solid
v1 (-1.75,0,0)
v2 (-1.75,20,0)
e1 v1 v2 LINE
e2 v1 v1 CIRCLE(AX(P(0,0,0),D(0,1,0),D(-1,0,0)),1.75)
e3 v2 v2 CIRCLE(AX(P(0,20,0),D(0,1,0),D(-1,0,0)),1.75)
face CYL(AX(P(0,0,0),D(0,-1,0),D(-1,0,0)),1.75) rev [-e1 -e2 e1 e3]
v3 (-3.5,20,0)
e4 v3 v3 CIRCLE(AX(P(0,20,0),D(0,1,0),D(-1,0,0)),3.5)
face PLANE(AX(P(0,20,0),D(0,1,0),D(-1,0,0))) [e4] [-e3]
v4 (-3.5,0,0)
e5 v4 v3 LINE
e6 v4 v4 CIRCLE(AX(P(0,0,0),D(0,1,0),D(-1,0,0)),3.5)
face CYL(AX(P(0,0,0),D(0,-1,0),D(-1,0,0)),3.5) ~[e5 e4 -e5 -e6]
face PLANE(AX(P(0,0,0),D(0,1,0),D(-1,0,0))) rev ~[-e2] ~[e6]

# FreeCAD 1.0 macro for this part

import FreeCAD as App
import Part
import Sketcher
Q = App.Units.Quantity

doc = App.newDocument("Part")
body = doc.addObject("PartDesign::Body", "Body")

# Sketch on XZ plane
sketch1 = doc.addObject("Sketcher::SketchObject", "Sketch")
body.addObject(sketch1)
sketch1.AttachmentSupport = (doc.XZ_Plane, [""])
sketch1.MapMode = "FlatFace"
sketch1.addGeometry([
    Part.Circle(App.Vector(0, 0, 0), App.Vector(0, 0, 1), 3.5),
    Part.Circle(App.Vector(0, 0, 0), App.Vector(0, 0, 1), 1.8),
], False)
sketch1.addConstraint([
    Sketcher.Constraint("Coincident", 0, 3, -1, 1),
    Sketcher.Constraint("Coincident", 1, 3, -1, 1),
    Sketcher.Constraint("Diameter", 0, Q("7 mm")),
    Sketcher.Constraint("Diameter", 1, Q("3.5 mm")),
])
pad1 = doc.addObject("PartDesign::Pad", "Pad")
body.addObject(pad1)
pad1.Profile = sketch1
pad1.Length = 20
pad1.Reversed = True

doc.recompute()
